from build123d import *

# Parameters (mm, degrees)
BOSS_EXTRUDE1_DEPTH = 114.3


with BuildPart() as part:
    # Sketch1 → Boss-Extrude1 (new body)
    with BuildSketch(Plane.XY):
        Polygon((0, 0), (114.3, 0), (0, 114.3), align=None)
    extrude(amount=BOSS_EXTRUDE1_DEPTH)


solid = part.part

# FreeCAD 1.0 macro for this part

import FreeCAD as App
import Part
import Sketcher

V = App.Vector
Q = App.Units.Quantity


def add_polygon(sketch, points):
    """Adds a closed chain of lines whose ends are joined by coincident constraints."""
    first, n = sketch.GeometryCount, len(points)
    for a, b in zip(points, points[1:] + points[:1]):
        sketch.addGeometry(Part.LineSegment(App.Vector(*a, 0), App.Vector(*b, 0)), False)
    for i in range(n):
        sketch.addConstraint(Sketcher.Constraint("Coincident", first + i, 2, first + (i + 1) % n, 1))

doc = App.newDocument("Part")
params = doc.addObject("Spreadsheet::Sheet", "Params")
for row, (alias, value) in enumerate([
    ("sketch1_width", "4.5 in"),
    ("pad1_length", "4.5 in"),
], start=1):
    params.set(f"A{row}", alias)
    params.set(f"B{row}", "=" + value)
    params.setAlias(f"B{row}", alias)

body = doc.addObject("PartDesign::Body", "Body")

sketch1 = body.newObject("Sketcher::SketchObject", "Sketch")
sketch1.AttachmentSupport = (doc.getObject("XY_Plane"), [""])
sketch1.MapMode = "FlatFace"
add_polygon(sketch1, [(0, 0), (114, 0), (0, 114)])
sketch1.addConstraint(Sketcher.Constraint("Horizontal", 0))
sketch1.addConstraint(Sketcher.Constraint("Vertical", 2))
sketch1.addConstraint(Sketcher.Constraint("Coincident", 2, 2, -1, 1))
sketch1.addConstraint(Sketcher.Constraint("Equal", 0, 2))
sketch1.addConstraint(Sketcher.Constraint("DistanceX", 0, 1, 0, 2, Q("4.5 in")))
sketch1.setExpression("Constraints[7]", "Params.sketch1_width")
pad1 = body.newObject("PartDesign::Pad", "Pad")
pad1.Profile = sketch1
pad1.setExpression("Length", "Params.pad1_length")

doc.recompute()
